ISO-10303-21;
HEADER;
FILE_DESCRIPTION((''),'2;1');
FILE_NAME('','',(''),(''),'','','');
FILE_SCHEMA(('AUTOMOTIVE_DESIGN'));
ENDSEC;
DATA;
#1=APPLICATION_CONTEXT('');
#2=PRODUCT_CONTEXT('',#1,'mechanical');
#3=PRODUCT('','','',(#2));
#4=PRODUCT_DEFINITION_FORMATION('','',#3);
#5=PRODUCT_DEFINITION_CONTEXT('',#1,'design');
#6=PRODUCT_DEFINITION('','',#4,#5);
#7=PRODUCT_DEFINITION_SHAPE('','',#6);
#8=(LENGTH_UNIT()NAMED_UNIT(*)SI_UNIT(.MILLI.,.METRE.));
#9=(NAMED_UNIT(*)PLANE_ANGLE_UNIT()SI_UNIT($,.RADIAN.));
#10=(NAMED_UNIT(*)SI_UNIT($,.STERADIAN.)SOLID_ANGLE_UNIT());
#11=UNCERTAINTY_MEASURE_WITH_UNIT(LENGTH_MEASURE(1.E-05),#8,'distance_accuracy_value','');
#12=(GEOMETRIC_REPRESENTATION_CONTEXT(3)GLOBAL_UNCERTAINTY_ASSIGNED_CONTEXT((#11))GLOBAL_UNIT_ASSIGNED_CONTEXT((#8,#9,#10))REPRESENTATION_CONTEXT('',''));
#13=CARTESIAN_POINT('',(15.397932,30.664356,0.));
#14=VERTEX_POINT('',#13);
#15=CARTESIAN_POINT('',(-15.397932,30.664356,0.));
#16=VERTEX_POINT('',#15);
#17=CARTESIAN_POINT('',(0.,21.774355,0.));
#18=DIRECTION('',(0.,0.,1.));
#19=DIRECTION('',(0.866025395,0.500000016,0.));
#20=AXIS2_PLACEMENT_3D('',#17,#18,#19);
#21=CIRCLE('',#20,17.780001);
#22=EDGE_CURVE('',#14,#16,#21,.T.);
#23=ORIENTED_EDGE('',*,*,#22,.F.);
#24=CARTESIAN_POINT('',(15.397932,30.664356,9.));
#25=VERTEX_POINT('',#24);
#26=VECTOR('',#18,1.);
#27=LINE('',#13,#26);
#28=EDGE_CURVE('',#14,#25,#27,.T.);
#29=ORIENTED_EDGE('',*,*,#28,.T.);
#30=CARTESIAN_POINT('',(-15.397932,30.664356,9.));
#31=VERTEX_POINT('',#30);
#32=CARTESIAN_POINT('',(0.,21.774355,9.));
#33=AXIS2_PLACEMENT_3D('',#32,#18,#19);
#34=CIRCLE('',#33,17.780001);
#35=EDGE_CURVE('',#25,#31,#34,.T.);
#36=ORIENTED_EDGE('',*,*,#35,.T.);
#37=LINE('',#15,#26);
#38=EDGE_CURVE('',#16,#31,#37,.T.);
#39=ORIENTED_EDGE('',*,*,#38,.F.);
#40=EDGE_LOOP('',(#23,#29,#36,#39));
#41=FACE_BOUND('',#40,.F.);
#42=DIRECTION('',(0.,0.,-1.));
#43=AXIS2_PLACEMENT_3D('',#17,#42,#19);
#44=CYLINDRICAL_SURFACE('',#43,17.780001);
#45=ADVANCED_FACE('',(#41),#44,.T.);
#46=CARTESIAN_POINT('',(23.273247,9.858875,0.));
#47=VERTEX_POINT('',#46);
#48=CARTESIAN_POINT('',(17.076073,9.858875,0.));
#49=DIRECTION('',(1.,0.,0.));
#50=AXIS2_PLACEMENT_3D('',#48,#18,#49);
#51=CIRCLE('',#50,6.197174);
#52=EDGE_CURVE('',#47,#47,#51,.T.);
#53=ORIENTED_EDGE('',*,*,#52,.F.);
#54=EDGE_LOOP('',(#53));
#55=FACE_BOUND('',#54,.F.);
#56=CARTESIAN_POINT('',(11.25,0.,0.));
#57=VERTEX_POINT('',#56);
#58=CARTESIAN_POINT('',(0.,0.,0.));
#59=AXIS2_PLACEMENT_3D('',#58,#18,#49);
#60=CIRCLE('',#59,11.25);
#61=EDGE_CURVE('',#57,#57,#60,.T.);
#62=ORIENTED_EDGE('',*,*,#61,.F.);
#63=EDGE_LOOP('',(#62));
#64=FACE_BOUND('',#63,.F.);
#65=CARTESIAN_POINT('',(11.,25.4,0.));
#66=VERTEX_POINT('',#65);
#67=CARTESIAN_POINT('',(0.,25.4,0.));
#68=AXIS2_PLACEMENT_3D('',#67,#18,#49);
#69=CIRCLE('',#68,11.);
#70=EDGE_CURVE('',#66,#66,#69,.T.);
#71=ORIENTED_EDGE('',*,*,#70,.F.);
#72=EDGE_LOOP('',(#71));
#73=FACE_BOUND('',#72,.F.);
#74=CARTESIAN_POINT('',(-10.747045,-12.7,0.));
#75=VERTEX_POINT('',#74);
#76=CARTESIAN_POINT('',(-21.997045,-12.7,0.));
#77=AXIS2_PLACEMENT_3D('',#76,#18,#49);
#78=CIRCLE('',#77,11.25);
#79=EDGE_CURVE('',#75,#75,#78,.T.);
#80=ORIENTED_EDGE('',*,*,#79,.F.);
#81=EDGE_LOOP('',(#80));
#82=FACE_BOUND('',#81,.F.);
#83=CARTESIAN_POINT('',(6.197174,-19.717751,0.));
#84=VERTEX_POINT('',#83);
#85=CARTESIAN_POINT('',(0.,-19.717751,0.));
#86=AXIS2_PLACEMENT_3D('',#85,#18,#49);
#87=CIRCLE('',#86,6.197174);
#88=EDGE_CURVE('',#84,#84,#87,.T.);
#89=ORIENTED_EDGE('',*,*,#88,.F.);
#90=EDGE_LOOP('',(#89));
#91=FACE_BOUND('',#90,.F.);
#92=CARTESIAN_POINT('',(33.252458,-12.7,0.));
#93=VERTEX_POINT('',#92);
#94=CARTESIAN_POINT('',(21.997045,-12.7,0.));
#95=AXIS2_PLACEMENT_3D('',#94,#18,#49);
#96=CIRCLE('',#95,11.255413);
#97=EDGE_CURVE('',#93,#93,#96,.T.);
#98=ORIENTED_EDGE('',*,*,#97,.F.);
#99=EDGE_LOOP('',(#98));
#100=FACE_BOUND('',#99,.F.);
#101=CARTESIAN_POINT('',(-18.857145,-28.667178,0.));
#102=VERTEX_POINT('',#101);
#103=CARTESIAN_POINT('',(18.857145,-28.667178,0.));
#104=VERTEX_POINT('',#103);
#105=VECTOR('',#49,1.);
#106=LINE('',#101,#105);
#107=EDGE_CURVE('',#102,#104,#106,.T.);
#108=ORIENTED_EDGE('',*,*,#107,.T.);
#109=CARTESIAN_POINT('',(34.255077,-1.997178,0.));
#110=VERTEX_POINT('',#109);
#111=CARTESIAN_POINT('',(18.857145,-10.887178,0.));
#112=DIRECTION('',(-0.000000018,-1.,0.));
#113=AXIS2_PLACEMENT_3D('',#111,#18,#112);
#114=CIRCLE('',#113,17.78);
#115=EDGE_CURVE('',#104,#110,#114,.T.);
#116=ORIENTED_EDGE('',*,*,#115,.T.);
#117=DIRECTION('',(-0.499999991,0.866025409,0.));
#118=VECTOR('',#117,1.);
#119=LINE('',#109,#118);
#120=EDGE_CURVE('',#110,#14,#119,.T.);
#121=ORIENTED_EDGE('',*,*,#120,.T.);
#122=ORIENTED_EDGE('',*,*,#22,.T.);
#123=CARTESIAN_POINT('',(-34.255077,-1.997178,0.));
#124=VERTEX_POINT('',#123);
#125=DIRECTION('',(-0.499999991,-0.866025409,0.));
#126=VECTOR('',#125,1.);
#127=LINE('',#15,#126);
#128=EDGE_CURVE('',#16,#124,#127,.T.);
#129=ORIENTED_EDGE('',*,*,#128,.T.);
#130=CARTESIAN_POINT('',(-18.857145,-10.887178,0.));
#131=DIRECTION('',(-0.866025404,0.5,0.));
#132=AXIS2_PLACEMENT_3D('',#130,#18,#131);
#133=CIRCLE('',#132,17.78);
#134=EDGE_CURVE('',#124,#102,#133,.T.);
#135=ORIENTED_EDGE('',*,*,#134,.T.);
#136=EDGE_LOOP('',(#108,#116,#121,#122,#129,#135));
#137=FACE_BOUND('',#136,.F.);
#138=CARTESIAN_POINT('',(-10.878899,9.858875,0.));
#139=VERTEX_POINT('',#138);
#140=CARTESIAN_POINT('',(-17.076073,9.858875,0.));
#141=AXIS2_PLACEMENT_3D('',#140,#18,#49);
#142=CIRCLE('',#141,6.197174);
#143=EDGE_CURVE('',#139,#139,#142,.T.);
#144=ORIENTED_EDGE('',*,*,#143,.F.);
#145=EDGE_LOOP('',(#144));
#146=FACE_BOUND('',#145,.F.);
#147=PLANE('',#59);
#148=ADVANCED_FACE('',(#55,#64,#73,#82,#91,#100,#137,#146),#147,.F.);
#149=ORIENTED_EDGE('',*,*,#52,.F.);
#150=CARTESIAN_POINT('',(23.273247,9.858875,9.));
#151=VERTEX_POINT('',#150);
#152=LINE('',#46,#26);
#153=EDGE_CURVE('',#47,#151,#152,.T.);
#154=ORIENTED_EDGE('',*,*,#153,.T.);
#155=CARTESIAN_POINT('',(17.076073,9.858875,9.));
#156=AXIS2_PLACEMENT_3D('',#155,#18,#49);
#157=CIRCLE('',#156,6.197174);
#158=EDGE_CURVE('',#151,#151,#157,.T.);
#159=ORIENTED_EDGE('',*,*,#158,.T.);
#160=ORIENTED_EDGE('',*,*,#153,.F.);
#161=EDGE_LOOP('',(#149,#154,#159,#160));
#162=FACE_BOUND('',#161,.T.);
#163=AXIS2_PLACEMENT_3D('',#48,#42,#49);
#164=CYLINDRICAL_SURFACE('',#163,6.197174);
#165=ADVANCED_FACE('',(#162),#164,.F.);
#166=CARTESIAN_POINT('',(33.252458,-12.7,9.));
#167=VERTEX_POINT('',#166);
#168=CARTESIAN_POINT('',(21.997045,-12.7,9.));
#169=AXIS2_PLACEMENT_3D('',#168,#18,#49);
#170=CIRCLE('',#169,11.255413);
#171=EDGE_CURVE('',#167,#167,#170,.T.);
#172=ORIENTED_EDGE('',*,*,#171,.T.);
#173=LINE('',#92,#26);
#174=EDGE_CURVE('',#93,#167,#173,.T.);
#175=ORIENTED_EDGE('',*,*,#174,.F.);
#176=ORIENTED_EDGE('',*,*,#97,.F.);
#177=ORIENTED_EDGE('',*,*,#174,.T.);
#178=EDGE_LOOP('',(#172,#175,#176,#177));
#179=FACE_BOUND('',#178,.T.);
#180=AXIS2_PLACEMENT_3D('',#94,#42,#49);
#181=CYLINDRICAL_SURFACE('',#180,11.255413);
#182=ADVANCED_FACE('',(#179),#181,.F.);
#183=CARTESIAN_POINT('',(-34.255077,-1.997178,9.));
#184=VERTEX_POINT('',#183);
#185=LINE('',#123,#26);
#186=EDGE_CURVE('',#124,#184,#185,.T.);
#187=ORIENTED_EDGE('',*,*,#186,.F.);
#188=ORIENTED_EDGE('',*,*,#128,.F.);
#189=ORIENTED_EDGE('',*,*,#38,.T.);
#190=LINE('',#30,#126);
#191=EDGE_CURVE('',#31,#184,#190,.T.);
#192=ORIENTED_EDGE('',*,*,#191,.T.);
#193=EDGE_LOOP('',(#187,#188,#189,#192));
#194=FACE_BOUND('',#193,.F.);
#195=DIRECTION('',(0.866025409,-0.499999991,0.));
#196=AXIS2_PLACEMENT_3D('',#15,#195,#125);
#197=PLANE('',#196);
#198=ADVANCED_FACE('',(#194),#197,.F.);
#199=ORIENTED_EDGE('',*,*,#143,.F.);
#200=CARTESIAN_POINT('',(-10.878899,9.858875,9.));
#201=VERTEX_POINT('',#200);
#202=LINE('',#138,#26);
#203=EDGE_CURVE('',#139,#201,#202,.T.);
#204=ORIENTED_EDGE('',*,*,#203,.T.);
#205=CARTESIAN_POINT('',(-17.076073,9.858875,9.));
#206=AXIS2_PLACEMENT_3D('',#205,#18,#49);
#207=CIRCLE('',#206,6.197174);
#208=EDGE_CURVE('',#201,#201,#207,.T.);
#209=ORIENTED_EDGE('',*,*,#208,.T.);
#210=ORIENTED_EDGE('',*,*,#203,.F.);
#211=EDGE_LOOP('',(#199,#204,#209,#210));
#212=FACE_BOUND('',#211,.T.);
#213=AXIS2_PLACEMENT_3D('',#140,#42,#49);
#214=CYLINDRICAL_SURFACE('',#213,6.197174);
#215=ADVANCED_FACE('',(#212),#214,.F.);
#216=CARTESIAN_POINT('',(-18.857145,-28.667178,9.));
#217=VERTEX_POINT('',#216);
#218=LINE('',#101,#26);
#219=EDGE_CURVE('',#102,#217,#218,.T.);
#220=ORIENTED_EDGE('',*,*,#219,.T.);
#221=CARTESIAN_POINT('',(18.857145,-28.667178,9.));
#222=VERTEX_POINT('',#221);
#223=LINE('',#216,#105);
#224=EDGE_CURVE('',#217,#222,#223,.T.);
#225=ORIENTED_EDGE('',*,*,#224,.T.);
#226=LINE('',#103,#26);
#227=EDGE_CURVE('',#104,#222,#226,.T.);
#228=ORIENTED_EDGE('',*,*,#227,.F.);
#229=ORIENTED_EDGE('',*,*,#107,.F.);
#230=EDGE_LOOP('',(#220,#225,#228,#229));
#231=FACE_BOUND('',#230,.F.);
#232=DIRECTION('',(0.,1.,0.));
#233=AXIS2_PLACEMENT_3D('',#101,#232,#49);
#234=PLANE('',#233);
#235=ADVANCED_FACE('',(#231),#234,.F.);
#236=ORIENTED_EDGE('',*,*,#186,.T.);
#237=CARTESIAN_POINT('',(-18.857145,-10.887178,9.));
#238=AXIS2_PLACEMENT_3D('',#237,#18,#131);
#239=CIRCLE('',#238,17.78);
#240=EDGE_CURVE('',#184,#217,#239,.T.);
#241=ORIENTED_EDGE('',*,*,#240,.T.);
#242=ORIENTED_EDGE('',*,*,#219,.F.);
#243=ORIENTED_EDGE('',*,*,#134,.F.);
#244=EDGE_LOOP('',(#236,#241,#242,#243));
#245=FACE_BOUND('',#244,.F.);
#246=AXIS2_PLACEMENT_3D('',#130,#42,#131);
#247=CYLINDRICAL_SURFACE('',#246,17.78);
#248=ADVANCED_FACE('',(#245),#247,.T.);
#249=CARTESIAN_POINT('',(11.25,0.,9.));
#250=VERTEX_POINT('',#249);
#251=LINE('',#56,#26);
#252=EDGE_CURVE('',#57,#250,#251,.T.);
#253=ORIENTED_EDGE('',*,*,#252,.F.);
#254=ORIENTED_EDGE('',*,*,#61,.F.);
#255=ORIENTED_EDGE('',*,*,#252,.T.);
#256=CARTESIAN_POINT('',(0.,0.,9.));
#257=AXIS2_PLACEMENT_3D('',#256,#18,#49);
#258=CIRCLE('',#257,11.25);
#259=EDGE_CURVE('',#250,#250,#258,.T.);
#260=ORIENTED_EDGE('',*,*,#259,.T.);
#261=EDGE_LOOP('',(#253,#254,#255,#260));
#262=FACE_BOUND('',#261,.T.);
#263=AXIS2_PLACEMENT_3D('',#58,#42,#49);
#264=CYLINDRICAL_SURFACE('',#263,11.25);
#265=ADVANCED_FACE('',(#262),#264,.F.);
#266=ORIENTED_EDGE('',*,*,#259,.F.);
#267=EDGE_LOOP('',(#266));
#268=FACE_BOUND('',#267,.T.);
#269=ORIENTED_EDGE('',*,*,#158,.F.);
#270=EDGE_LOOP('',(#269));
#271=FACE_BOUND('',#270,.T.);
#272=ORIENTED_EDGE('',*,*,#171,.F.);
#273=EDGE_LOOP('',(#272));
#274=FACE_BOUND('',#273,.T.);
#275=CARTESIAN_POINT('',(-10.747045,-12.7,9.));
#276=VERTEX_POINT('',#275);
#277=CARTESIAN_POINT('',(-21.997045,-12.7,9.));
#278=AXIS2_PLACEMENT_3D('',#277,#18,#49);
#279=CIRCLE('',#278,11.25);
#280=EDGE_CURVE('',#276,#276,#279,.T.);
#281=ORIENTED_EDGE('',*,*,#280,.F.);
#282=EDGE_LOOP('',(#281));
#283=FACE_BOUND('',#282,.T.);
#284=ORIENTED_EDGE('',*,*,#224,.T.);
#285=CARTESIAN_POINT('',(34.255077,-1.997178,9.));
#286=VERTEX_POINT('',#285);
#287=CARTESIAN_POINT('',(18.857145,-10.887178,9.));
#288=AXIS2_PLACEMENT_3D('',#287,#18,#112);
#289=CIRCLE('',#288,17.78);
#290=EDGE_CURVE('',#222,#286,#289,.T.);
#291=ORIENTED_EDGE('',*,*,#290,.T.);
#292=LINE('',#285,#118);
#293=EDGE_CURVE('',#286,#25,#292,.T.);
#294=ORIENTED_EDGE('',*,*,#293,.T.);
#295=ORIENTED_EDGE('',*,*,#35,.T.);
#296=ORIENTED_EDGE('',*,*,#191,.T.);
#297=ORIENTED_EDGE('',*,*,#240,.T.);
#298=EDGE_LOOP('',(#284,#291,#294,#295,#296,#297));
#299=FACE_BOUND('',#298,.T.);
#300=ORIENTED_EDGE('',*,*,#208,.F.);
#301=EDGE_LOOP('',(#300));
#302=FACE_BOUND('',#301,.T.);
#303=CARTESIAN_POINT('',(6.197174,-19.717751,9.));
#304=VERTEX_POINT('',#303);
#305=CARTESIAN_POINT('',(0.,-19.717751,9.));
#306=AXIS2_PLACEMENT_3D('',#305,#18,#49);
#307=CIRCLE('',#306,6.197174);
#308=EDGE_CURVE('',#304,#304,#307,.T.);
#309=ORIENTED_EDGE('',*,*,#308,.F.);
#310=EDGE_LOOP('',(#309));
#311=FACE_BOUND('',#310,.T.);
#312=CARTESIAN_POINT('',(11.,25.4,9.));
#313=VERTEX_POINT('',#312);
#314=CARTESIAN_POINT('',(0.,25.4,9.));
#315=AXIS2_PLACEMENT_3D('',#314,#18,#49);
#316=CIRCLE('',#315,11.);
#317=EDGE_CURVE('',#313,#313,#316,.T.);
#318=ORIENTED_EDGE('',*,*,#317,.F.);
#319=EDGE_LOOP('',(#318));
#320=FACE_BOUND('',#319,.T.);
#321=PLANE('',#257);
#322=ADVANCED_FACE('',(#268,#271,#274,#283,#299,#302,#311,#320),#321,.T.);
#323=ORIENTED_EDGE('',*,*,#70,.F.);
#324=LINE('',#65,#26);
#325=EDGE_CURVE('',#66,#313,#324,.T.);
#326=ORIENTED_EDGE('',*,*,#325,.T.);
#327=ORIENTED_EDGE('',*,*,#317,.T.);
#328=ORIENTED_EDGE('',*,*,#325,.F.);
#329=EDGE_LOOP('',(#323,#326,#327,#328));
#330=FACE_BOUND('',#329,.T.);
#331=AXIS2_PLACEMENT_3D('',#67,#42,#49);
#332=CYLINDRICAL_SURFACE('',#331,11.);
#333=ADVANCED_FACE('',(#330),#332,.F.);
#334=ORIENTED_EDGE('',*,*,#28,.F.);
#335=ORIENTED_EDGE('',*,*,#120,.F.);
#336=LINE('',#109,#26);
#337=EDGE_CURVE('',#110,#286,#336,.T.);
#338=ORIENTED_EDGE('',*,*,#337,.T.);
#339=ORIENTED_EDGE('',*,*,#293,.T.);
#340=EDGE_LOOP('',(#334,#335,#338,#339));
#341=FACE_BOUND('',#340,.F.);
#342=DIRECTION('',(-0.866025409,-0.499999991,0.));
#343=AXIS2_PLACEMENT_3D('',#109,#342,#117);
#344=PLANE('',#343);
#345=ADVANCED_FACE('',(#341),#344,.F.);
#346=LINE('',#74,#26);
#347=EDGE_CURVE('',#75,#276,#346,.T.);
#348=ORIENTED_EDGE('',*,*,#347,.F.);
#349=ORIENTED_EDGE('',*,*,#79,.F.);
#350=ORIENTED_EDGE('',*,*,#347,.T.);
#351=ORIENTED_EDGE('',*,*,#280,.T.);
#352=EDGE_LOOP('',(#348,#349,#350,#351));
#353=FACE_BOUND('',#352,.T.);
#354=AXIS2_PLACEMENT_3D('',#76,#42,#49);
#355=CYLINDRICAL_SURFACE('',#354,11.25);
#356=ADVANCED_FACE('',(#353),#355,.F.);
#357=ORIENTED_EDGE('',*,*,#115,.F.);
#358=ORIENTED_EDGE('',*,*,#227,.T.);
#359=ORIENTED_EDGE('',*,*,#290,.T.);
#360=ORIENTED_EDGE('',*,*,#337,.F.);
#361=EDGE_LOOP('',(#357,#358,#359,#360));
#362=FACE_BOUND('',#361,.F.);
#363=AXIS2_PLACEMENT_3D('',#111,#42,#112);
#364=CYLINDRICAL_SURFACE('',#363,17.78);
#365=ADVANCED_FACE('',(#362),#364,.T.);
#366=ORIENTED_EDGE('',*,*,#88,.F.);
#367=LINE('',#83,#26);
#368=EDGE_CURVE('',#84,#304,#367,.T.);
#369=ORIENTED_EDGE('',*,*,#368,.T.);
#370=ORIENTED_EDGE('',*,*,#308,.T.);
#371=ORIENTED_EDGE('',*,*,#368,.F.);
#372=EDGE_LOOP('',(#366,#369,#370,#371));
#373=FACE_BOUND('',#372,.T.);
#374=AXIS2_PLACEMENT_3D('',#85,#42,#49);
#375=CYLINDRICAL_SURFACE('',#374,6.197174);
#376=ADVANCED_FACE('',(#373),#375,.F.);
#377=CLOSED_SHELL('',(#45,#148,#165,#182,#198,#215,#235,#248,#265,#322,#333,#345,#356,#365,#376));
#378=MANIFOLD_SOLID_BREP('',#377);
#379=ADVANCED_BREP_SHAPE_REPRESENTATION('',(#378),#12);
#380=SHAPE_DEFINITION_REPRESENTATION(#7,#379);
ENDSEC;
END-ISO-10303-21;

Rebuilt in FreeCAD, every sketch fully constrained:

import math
import FreeCAD as App
import Part
import Sketcher

V = App.Vector
Q = App.Units.Quantity

doc = App.newDocument("Part")
body = doc.addObject("PartDesign::Body", "Body")

sketch1 = body.newObject("Sketcher::SketchObject", "Sketch")
sketch1.AttachmentSupport = (doc.getObject("XY_Plane"), [""])
sketch1.MapMode = "FlatFace"
sketch1.addGeometry([
    Part.LineSegment(V(-19, -29, 0), V(19, -29, 0)),
    Part.ArcOfCircle(Part.Circle(V(19, -11, 0), V(0, 0, 1), 18), math.radians(-90), math.radians(30)),
    Part.LineSegment(V(34, -2, 0), V(15, 31, 0)),
    Part.ArcOfCircle(Part.Circle(V(0, 22, 0), V(0, 0, 1), 18), math.radians(30), math.radians(150)),
    Part.LineSegment(V(-15, 31, 0), V(-34, -2, 0)),
    Part.ArcOfCircle(Part.Circle(V(-19, -11, 0), V(0, 0, 1), 18), math.radians(150), math.radians(270)),
    Part.Circle(V(-22, -13, 0), V(0, 0, 1), 11),
    Part.Circle(V(0, -20, 0), V(0, 0, 1), 6),
    Part.Circle(V(0, 0, 0), V(0, 0, 1), 11),
    Part.Circle(V(22, -13, 0), V(0, 0, 1), 11),
    Part.Circle(V(-17, 10, 0), V(0, 0, 1), 6),
    Part.Circle(V(0, 25, 0), V(0, 0, 1), 11),
    Part.Circle(V(17, 10, 0), V(0, 0, 1), 6),
], False)
sketch1.addConstraint([
    Sketcher.Constraint("Tangent", 0, 2, 1, 1),
    Sketcher.Constraint("Tangent", 1, 2, 2, 1),
    Sketcher.Constraint("Tangent", 2, 2, 3, 1),
    Sketcher.Constraint("Tangent", 3, 2, 4, 1),
    Sketcher.Constraint("Tangent", 4, 2, 5, 1),
    Sketcher.Constraint("Tangent", 5, 2, 0, 1),
    Sketcher.Constraint("Horizontal", 0),
    Sketcher.Constraint("Coincident", 8, 3, -1, 1),
    Sketcher.Constraint("Equal", 1, 3),
    Sketcher.Constraint("Equal", 3, 5),
    Sketcher.Constraint("Equal", 6, 8),
    Sketcher.Constraint("Equal", 7, 10),
    Sketcher.Constraint("Equal", 10, 12),
    Sketcher.Constraint("Symmetric", 6, 3, 9, 3, -2),
    Sketcher.Constraint("Symmetric", 10, 3, 12, 3, -2),
    Sketcher.Constraint("Symmetric", 2, 2, 3, 2, -2),
    Sketcher.Constraint("PointOnObject", 7, 3, -2),
    Sketcher.Constraint("PointOnObject", 11, 3, -2),
    Sketcher.Constraint("Diameter", 11, 22.0),
    Sketcher.Constraint("Diameter", 6, 22.5),
    Sketcher.Constraint("Angle", 2, Q("119.999999 deg")),
    Sketcher.Constraint("Radius", 1, 17.78),
    Sketcher.Constraint("DistanceY", 6, 3, -1, 1, 12.7),
    Sketcher.Constraint("DistanceY", -1, 1, 11, 3, 25.4),
    Sketcher.Constraint("Diameter", 7, 12.394348),
    Sketcher.Constraint("Diameter", 9, 22.510826),
    Sketcher.Constraint("DistanceX", 0, 1, 0, 2, 37.71429),
    Sketcher.Constraint("DistanceX", 6, 3, 5, 3, 3.1399),
    Sketcher.Constraint("DistanceY", 7, 3, -1, 1, 19.717751),
    Sketcher.Constraint("DistanceY", 0, 2, -1, 1, 28.667178),
    Sketcher.Constraint("DistanceY", 10, 3, 3, 3, 11.91548),
    Sketcher.Constraint("DistanceX", 6, 3, 10, 3, 4.920972),
])
pad1 = body.newObject("PartDesign::Pad", "Pad")
pad1.Profile = sketch1
pad1.Length = 9

doc.recompute()
